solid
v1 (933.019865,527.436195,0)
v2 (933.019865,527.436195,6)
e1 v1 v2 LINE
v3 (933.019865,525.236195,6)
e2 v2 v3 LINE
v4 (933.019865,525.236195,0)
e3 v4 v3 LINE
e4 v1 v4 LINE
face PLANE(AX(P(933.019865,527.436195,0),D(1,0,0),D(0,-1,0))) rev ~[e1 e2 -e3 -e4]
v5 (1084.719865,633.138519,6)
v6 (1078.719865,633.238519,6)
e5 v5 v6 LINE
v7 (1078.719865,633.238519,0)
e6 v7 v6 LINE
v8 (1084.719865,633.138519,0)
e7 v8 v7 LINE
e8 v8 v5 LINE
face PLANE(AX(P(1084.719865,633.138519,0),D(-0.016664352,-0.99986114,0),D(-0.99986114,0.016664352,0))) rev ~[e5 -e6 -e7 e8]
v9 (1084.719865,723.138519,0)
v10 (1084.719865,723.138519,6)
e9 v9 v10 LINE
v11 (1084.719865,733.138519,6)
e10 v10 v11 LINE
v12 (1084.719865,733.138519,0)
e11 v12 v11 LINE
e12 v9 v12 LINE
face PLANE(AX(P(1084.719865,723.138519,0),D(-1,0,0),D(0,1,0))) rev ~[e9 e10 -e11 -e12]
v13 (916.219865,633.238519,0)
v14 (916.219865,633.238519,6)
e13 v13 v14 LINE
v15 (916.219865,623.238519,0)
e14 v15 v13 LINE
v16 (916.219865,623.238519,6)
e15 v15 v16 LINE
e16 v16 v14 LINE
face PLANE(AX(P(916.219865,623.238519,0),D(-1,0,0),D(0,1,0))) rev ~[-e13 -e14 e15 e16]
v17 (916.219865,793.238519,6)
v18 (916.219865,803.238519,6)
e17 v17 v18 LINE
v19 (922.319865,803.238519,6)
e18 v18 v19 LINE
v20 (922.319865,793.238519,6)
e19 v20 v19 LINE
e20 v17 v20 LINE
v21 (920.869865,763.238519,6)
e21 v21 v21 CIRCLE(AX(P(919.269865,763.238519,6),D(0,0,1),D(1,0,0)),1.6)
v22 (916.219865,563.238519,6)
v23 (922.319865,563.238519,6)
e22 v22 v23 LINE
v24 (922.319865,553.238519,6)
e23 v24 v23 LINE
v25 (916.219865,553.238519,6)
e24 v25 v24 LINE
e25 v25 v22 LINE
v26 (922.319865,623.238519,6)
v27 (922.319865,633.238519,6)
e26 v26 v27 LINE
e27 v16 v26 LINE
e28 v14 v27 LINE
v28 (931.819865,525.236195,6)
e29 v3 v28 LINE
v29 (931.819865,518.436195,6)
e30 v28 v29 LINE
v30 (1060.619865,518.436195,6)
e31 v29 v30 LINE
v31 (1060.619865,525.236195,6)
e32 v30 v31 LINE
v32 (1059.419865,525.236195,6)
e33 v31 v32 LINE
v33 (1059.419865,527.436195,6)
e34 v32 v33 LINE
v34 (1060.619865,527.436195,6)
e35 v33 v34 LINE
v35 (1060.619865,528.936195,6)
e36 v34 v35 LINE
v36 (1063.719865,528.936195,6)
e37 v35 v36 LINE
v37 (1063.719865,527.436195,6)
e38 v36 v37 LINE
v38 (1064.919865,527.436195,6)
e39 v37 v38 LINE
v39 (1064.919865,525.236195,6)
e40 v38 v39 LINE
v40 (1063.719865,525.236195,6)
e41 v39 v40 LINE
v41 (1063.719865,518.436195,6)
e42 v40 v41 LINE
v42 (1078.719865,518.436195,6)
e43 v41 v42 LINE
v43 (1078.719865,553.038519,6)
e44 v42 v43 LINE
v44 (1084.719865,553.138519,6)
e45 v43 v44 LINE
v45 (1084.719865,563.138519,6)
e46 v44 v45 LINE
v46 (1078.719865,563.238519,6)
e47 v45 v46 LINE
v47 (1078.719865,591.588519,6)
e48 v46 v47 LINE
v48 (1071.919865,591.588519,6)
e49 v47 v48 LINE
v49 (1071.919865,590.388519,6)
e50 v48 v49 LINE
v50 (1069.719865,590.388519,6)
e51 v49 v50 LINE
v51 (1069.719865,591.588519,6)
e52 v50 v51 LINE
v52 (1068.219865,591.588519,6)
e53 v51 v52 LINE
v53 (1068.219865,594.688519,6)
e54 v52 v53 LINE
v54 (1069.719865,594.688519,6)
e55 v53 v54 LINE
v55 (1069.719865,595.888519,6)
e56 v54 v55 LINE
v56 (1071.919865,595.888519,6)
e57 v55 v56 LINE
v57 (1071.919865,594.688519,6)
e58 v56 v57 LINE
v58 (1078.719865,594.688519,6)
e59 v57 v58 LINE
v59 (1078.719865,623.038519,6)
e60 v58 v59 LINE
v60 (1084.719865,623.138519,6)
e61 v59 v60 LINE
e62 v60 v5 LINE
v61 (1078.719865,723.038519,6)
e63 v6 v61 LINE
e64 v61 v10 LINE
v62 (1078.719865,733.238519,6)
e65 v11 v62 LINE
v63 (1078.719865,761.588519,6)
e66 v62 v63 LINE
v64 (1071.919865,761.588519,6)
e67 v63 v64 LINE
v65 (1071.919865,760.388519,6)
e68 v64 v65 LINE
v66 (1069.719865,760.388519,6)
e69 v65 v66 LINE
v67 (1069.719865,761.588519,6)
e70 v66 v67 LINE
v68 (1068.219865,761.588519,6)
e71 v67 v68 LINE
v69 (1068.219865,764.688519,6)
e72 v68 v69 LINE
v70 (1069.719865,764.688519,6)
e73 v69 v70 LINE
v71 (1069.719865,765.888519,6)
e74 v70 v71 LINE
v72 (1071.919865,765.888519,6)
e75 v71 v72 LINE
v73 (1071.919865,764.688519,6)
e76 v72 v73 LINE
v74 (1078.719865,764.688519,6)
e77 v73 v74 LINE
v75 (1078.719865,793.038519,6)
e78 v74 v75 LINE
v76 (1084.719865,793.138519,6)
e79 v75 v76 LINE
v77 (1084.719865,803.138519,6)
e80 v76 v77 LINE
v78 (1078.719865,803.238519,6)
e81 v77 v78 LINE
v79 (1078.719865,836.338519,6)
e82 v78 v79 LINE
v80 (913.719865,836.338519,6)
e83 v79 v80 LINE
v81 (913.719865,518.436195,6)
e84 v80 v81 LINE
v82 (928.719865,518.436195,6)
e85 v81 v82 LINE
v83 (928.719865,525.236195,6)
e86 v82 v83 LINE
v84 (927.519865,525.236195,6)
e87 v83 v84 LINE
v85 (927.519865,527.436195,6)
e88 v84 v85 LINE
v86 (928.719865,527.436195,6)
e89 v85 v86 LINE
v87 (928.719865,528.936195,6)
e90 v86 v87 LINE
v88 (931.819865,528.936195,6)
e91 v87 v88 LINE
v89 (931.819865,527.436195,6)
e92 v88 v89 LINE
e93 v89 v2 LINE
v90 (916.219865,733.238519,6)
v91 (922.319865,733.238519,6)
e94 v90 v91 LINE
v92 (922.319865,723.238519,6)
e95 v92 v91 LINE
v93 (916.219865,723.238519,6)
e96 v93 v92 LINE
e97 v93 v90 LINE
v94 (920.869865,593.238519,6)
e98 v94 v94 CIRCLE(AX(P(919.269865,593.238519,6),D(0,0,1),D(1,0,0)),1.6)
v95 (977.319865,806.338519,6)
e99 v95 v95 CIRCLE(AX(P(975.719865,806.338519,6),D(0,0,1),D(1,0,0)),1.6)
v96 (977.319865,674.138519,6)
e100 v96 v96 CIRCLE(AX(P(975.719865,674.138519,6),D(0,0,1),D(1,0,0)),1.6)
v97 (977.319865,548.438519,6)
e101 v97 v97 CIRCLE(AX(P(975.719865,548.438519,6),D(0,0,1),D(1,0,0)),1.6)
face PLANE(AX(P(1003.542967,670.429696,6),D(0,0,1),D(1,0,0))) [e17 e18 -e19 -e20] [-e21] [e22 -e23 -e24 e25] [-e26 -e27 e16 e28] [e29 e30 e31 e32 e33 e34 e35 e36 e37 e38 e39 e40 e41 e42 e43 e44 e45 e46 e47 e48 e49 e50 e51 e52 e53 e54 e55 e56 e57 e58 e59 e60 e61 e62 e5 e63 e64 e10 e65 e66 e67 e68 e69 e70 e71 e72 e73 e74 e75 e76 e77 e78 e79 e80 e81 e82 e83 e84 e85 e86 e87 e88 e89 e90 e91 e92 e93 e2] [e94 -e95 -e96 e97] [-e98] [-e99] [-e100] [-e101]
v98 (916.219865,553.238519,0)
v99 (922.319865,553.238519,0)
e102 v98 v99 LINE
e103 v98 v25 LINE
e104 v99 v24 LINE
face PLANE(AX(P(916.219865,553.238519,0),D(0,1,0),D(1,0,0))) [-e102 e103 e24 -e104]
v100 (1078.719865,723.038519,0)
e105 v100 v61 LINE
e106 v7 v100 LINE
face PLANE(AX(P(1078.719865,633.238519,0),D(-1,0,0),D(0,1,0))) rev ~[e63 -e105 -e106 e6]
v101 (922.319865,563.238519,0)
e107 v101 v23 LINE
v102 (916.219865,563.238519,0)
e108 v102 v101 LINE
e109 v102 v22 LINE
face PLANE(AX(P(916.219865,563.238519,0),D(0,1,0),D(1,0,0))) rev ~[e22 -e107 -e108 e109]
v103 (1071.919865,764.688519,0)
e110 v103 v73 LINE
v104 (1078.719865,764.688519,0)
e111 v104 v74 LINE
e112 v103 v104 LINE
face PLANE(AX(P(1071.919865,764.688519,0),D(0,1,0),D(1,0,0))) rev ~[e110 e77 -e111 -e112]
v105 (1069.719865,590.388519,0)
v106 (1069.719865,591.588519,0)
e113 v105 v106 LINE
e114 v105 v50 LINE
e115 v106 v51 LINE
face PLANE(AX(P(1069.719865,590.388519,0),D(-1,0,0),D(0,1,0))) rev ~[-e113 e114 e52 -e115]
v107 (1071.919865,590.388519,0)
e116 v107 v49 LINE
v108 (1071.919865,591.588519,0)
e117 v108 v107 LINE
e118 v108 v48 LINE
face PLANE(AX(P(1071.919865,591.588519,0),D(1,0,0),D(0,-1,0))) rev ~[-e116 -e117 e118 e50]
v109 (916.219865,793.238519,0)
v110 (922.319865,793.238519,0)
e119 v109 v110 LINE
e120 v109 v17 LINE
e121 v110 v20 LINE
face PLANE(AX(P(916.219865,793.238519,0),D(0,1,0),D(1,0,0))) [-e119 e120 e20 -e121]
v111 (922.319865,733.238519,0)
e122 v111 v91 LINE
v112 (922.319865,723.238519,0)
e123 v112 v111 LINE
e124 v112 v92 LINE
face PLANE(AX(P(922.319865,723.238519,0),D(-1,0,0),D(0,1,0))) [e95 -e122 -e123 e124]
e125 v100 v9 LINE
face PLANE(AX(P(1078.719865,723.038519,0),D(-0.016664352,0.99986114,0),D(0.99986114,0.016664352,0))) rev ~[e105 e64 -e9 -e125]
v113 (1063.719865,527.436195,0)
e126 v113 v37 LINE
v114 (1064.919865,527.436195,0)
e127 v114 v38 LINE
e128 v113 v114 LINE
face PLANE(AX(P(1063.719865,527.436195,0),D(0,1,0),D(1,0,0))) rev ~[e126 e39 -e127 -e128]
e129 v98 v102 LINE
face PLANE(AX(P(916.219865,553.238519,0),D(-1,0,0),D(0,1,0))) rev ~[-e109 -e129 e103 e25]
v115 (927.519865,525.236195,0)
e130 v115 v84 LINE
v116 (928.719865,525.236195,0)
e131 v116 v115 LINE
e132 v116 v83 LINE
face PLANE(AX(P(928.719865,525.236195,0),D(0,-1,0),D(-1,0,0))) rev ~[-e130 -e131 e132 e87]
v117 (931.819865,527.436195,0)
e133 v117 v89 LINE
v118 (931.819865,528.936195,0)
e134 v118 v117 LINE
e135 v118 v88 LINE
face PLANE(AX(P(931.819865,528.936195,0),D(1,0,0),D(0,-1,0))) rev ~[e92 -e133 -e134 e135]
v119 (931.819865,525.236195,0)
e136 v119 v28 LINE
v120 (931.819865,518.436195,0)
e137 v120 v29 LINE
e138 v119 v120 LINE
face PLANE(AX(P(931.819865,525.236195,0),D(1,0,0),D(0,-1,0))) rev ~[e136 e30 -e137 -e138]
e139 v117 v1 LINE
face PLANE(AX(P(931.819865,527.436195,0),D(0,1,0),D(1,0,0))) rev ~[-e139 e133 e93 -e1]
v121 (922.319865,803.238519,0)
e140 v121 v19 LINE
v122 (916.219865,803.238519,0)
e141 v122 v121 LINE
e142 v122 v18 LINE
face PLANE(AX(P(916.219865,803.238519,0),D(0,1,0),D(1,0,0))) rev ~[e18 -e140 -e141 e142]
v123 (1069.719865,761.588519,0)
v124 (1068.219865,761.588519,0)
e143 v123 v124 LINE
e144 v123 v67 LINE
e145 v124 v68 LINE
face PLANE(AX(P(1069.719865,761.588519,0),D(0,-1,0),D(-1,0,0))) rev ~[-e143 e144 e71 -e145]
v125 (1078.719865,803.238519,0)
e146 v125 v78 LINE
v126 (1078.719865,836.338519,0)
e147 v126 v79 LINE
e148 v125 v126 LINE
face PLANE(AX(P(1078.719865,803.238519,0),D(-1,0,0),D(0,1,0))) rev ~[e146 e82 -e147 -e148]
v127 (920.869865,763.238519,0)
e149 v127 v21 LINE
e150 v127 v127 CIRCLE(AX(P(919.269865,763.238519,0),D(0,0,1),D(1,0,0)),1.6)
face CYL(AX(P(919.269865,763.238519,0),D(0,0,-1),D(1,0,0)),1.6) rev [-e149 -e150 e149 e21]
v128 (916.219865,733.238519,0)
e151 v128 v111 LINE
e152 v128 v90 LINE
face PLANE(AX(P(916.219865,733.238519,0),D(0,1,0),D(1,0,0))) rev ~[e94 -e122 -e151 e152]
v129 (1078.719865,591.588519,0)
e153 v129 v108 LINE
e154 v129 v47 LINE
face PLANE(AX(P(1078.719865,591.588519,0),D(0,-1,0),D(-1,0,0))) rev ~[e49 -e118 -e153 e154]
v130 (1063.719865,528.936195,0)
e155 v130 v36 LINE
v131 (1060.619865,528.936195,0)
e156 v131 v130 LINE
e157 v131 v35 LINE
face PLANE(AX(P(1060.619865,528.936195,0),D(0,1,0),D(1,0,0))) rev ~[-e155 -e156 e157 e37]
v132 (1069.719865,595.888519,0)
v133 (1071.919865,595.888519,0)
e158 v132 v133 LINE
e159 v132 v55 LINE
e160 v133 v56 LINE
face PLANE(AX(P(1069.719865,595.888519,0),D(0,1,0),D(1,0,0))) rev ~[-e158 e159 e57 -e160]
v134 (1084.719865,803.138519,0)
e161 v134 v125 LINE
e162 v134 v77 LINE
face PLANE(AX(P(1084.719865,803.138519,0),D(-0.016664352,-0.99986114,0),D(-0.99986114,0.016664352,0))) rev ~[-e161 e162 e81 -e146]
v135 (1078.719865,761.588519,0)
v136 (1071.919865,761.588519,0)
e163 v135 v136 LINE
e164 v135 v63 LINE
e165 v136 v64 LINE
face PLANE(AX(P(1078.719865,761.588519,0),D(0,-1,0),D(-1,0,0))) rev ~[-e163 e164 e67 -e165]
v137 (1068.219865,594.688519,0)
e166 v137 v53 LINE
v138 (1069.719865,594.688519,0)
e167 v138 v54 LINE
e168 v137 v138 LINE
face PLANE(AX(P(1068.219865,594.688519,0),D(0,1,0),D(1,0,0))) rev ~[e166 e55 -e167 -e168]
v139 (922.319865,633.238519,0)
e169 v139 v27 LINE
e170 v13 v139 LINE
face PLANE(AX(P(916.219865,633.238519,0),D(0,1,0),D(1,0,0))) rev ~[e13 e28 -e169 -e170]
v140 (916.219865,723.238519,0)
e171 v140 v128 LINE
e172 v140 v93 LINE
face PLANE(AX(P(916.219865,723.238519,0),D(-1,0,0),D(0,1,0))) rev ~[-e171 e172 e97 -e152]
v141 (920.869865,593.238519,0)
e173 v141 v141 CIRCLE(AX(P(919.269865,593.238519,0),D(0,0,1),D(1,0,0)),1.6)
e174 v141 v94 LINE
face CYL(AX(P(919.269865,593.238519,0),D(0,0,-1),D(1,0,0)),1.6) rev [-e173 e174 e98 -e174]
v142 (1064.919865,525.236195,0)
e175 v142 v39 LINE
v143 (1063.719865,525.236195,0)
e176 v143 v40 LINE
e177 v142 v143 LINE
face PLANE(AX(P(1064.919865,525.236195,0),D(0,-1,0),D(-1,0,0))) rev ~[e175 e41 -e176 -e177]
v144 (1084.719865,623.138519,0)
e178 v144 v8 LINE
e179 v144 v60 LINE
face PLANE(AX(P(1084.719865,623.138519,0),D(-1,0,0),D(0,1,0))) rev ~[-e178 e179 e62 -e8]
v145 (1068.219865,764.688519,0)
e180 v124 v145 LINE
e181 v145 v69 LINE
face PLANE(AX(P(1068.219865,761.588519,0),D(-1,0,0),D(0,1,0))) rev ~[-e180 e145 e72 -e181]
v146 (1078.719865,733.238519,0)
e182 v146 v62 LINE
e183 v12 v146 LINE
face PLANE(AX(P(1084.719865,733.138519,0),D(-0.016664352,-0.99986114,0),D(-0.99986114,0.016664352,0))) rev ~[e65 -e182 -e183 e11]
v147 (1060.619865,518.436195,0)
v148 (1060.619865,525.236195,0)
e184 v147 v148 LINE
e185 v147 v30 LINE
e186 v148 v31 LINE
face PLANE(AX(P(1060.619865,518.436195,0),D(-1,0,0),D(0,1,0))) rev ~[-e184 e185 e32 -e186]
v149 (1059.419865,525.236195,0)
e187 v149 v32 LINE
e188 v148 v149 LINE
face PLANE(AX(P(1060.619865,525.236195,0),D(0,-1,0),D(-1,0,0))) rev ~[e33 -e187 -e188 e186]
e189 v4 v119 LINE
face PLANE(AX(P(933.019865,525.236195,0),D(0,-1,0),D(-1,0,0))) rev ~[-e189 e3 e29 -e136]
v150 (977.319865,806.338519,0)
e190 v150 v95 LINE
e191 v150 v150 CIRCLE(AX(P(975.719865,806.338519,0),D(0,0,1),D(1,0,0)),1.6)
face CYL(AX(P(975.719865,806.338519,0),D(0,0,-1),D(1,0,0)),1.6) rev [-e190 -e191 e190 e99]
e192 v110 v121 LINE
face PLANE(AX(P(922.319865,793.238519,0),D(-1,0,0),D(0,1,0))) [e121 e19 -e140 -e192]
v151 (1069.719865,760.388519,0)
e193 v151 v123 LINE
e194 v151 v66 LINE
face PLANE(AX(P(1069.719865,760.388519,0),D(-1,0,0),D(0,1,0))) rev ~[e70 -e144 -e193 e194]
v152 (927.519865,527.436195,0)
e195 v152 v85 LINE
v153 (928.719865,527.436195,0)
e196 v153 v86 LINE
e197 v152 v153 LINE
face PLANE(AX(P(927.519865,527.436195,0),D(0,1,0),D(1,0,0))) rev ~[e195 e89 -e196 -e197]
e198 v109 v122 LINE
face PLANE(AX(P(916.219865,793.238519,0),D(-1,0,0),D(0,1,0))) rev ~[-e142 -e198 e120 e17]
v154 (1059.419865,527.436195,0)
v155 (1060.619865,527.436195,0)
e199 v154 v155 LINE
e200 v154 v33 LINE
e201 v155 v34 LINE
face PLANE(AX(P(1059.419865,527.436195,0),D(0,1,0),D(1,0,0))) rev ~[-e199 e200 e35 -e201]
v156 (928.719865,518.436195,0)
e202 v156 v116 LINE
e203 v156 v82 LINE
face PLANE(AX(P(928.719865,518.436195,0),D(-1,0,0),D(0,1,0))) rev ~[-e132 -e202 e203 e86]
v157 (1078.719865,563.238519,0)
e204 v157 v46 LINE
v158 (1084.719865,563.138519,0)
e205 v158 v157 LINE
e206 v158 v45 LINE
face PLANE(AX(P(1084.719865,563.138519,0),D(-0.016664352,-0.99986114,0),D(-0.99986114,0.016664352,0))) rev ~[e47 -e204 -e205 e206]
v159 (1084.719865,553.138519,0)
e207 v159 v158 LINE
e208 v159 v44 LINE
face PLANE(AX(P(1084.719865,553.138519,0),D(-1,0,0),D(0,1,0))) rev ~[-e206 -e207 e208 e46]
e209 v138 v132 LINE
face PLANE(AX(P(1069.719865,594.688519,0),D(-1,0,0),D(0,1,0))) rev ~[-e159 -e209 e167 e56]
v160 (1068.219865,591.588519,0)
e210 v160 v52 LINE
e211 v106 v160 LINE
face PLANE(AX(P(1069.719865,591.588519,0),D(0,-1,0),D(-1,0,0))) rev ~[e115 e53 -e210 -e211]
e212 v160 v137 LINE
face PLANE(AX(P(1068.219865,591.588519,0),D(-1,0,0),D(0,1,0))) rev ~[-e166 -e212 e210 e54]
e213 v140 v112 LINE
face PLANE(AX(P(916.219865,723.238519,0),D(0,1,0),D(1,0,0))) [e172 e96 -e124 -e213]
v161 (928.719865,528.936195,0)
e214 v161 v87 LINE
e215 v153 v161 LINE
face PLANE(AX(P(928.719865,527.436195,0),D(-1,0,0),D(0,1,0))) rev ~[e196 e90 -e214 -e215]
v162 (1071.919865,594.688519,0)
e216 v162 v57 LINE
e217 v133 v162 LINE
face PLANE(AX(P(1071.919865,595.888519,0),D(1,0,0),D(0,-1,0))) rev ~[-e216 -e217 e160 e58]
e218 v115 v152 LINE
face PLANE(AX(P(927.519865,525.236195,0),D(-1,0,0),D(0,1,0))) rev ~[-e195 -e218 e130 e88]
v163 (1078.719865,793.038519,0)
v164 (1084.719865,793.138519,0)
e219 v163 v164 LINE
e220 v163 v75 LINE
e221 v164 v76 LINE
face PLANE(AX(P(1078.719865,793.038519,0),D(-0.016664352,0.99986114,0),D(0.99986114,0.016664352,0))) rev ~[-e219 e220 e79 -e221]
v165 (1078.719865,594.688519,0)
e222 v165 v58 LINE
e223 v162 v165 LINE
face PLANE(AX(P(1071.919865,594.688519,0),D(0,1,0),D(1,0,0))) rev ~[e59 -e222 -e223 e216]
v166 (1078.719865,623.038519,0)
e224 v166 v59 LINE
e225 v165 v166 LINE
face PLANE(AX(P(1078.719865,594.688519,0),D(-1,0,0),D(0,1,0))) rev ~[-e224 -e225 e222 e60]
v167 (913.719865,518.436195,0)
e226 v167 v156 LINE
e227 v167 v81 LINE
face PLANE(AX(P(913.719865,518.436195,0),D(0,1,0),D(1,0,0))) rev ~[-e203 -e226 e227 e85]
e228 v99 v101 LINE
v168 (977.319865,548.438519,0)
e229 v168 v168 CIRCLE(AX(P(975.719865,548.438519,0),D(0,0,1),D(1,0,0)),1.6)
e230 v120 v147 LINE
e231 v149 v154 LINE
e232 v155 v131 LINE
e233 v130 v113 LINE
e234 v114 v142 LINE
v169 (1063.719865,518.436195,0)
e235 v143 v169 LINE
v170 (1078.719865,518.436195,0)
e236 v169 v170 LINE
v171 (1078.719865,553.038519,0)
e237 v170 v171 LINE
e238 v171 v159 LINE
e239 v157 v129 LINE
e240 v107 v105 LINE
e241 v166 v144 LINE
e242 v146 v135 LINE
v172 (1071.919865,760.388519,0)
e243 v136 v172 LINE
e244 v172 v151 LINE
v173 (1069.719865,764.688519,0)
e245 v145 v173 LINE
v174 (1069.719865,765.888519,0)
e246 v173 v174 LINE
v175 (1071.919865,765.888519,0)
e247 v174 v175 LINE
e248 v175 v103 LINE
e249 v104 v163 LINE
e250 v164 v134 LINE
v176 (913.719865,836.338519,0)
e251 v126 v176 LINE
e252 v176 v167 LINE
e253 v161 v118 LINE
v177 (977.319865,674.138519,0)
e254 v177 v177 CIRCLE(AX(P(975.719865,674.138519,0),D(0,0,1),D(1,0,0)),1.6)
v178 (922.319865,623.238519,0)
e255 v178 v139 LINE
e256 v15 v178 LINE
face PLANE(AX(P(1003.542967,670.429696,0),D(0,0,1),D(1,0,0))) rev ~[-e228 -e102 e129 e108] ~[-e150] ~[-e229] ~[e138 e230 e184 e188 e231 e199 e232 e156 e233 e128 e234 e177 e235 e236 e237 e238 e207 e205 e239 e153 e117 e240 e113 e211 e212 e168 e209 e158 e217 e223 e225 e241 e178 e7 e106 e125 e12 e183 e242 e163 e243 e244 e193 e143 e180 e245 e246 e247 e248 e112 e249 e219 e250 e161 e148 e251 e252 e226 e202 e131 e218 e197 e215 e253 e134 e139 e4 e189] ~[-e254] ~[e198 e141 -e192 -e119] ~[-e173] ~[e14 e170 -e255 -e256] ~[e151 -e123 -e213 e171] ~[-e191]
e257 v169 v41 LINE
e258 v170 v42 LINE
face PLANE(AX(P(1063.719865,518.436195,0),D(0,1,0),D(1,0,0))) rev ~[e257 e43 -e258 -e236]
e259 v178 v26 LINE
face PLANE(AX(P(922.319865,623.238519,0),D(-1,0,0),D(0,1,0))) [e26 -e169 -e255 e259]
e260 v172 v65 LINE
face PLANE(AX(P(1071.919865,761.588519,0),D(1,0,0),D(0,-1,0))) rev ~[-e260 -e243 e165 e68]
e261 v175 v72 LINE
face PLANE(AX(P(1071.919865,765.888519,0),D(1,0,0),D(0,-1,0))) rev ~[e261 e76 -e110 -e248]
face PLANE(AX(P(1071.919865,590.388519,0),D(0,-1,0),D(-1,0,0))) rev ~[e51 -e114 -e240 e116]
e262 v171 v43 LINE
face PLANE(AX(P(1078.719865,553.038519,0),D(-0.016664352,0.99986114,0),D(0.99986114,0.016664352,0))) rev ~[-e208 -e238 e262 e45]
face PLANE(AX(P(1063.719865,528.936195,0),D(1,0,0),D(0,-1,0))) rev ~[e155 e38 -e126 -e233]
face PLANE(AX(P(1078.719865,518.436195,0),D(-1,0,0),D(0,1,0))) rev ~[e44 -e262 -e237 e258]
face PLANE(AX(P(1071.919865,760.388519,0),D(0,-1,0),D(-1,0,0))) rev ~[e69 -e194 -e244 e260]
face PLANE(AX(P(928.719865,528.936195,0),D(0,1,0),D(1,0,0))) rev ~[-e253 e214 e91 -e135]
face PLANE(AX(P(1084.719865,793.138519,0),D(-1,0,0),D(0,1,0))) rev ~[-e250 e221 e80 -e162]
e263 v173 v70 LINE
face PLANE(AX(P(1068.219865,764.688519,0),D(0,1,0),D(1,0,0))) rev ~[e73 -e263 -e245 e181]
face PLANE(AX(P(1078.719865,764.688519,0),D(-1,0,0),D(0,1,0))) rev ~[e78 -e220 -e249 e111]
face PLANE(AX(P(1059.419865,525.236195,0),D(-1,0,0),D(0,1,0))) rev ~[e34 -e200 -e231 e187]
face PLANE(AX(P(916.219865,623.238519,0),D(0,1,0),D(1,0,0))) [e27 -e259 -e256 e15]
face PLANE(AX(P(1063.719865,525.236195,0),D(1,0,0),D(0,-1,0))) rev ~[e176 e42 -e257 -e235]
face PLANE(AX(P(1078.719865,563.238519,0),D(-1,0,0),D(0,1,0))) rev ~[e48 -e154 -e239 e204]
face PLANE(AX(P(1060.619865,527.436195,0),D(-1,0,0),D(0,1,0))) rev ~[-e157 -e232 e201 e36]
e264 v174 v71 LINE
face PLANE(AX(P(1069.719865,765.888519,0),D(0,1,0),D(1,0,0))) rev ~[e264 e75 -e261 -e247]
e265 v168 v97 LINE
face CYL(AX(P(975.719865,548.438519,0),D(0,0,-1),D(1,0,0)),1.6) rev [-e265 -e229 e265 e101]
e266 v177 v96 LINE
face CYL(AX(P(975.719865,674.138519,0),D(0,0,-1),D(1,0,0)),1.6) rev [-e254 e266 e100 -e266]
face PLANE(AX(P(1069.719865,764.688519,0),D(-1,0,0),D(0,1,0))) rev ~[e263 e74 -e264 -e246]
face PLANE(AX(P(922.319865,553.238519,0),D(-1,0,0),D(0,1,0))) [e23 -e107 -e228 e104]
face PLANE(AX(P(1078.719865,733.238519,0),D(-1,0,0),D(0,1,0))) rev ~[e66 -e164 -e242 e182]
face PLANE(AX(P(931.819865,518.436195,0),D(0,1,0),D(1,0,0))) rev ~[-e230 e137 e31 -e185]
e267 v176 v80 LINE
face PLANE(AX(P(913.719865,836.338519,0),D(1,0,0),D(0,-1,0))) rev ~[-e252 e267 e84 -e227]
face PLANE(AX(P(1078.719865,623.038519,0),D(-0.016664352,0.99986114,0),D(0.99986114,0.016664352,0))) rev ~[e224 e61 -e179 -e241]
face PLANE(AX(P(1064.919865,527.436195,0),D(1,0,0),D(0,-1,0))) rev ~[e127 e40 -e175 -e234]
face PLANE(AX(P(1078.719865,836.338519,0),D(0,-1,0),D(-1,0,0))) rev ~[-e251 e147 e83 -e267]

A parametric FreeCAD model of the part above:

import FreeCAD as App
import Part
import Sketcher
from FreeCAD import Vector
Q = App.Units.Quantity

doc = App.newDocument("Part")
body = doc.addObject("PartDesign::Body", "Body")

sketch1 = body.newObject("Sketcher::SketchObject", "Sketch")
sketch1.AttachmentSupport = (doc.getObject("XY_Plane"), [""])
sketch1.MapMode = "FlatFace"
sketch1.addGeometry(Part.LineSegment(Vector(1078.7, 623, 0), Vector(1084.7, 623.1, 0)), False)
sketch1.addGeometry(Part.LineSegment(Vector(1084.7, 623.1, 0), Vector(1084.7, 633.1, 0)), False)
sketch1.addGeometry(Part.LineSegment(Vector(1084.7, 633.1, 0), Vector(1078.7, 633.2, 0)), False)
sketch1.addGeometry(Part.LineSegment(Vector(1078.7, 633.2, 0), Vector(1078.7, 723, 0)), False)
sketch1.addGeometry(Part.LineSegment(Vector(1078.7, 723, 0), Vector(1084.7, 723.1, 0)), False)
sketch1.addGeometry(Part.LineSegment(Vector(1084.7, 723.1, 0), Vector(1084.7, 733.1, 0)), False)
sketch1.addGeometry(Part.LineSegment(Vector(1084.7, 733.1, 0), Vector(1078.7, 733.2, 0)), False)
sketch1.addGeometry(Part.LineSegment(Vector(1078.7, 733.2, 0), Vector(1078.7, 761.6, 0)), False)
sketch1.addGeometry(Part.LineSegment(Vector(1078.7, 761.6, 0), Vector(1071.9, 761.6, 0)), False)
sketch1.addGeometry(Part.LineSegment(Vector(1071.9, 761.6, 0), Vector(1071.9, 760.4, 0)), False)
sketch1.addGeometry(Part.LineSegment(Vector(1071.9, 760.4, 0), Vector(1069.7, 760.4, 0)), False)
sketch1.addGeometry(Part.LineSegment(Vector(1069.7, 760.4, 0), Vector(1069.7, 761.6, 0)), False)
sketch1.addGeometry(Part.LineSegment(Vector(1069.7, 761.6, 0), Vector(1068.2, 761.6, 0)), False)
sketch1.addGeometry(Part.LineSegment(Vector(1068.2, 761.6, 0), Vector(1068.2, 764.7, 0)), False)
sketch1.addGeometry(Part.LineSegment(Vector(1068.2, 764.7, 0), Vector(1069.7, 764.7, 0)), False)
sketch1.addGeometry(Part.LineSegment(Vector(1069.7, 764.7, 0), Vector(1069.7, 765.9, 0)), False)
sketch1.addGeometry(Part.LineSegment(Vector(1069.7, 765.9, 0), Vector(1071.9, 765.9, 0)), False)
sketch1.addGeometry(Part.LineSegment(Vector(1071.9, 765.9, 0), Vector(1071.9, 764.7, 0)), False)
sketch1.addGeometry(Part.LineSegment(Vector(1071.9, 764.7, 0), Vector(1078.7, 764.7, 0)), False)
sketch1.addGeometry(Part.LineSegment(Vector(1078.7, 764.7, 0), Vector(1078.7, 793, 0)), False)
sketch1.addGeometry(Part.LineSegment(Vector(1078.7, 793, 0), Vector(1084.7, 793.1, 0)), False)
sketch1.addGeometry(Part.LineSegment(Vector(1084.7, 793.1, 0), Vector(1084.7, 803.1, 0)), False)
sketch1.addGeometry(Part.LineSegment(Vector(1084.7, 803.1, 0), Vector(1078.7, 803.2, 0)), False)
sketch1.addGeometry(Part.LineSegment(Vector(1078.7, 803.2, 0), Vector(1078.7, 836.3, 0)), False)
sketch1.addGeometry(Part.LineSegment(Vector(1078.7, 836.3, 0), Vector(913.7, 836.3, 0)), False)
sketch1.addGeometry(Part.LineSegment(Vector(913.7, 836.3, 0), Vector(913.7, 518.4, 0)), False)
sketch1.addGeometry(Part.LineSegment(Vector(913.7, 518.4, 0), Vector(928.7, 518.4, 0)), False)
sketch1.addGeometry(Part.LineSegment(Vector(928.7, 518.4, 0), Vector(928.7, 525.2, 0)), False)
sketch1.addGeometry(Part.LineSegment(Vector(928.7, 525.2, 0), Vector(927.5, 525.2, 0)), False)
sketch1.addGeometry(Part.LineSegment(Vector(927.5, 525.2, 0), Vector(927.5, 527.4, 0)), False)
sketch1.addGeometry(Part.LineSegment(Vector(927.5, 527.4, 0), Vector(928.7, 527.4, 0)), False)
sketch1.addGeometry(Part.LineSegment(Vector(928.7, 527.4, 0), Vector(928.7, 528.9, 0)), False)
sketch1.addGeometry(Part.LineSegment(Vector(928.7, 528.9, 0), Vector(931.8, 528.9, 0)), False)
sketch1.addGeometry(Part.LineSegment(Vector(931.8, 528.9, 0), Vector(931.8, 527.4, 0)), False)
sketch1.addGeometry(Part.LineSegment(Vector(931.8, 527.4, 0), Vector(933, 527.4, 0)), False)
sketch1.addGeometry(Part.LineSegment(Vector(933, 527.4, 0), Vector(933, 525.2, 0)), False)
sketch1.addGeometry(Part.LineSegment(Vector(933, 525.2, 0), Vector(931.8, 525.2, 0)), False)
sketch1.addGeometry(Part.LineSegment(Vector(931.8, 525.2, 0), Vector(931.8, 518.4, 0)), False)
sketch1.addGeometry(Part.LineSegment(Vector(931.8, 518.4, 0), Vector(1060.6, 518.4, 0)), False)
sketch1.addGeometry(Part.LineSegment(Vector(1060.6, 518.4, 0), Vector(1060.6, 525.2, 0)), False)
sketch1.addGeometry(Part.LineSegment(Vector(1060.6, 525.2, 0), Vector(1059.4, 525.2, 0)), False)
sketch1.addGeometry(Part.LineSegment(Vector(1059.4, 525.2, 0), Vector(1059.4, 527.4, 0)), False)
sketch1.addGeometry(Part.LineSegment(Vector(1059.4, 527.4, 0), Vector(1060.6, 527.4, 0)), False)
sketch1.addGeometry(Part.LineSegment(Vector(1060.6, 527.4, 0), Vector(1060.6, 528.9, 0)), False)
sketch1.addGeometry(Part.LineSegment(Vector(1060.6, 528.9, 0), Vector(1063.7, 528.9, 0)), False)
sketch1.addGeometry(Part.LineSegment(Vector(1063.7, 528.9, 0), Vector(1063.7, 527.4, 0)), False)
sketch1.addGeometry(Part.LineSegment(Vector(1063.7, 527.4, 0), Vector(1064.9, 527.4, 0)), False)
sketch1.addGeometry(Part.LineSegment(Vector(1064.9, 527.4, 0), Vector(1064.9, 525.2, 0)), False)
sketch1.addGeometry(Part.LineSegment(Vector(1064.9, 525.2, 0), Vector(1063.7, 525.2, 0)), False)
sketch1.addGeometry(Part.LineSegment(Vector(1063.7, 525.2, 0), Vector(1063.7, 518.4, 0)), False)
sketch1.addGeometry(Part.LineSegment(Vector(1063.7, 518.4, 0), Vector(1078.7, 518.4, 0)), False)
sketch1.addGeometry(Part.LineSegment(Vector(1078.7, 518.4, 0), Vector(1078.7, 553, 0)), False)
sketch1.addGeometry(Part.LineSegment(Vector(1078.7, 553, 0), Vector(1084.7, 553.1, 0)), False)
sketch1.addGeometry(Part.LineSegment(Vector(1084.7, 553.1, 0), Vector(1084.7, 563.1, 0)), False)
sketch1.addGeometry(Part.LineSegment(Vector(1084.7, 563.1, 0), Vector(1078.7, 563.2, 0)), False)
sketch1.addGeometry(Part.LineSegment(Vector(1078.7, 563.2, 0), Vector(1078.7, 591.6, 0)), False)
sketch1.addGeometry(Part.LineSegment(Vector(1078.7, 591.6, 0), Vector(1071.9, 591.6, 0)), False)
sketch1.addGeometry(Part.LineSegment(Vector(1071.9, 591.6, 0), Vector(1071.9, 590.4, 0)), False)
sketch1.addGeometry(Part.LineSegment(Vector(1071.9, 590.4, 0), Vector(1069.7, 590.4, 0)), False)
sketch1.addGeometry(Part.LineSegment(Vector(1069.7, 590.4, 0), Vector(1069.7, 591.6, 0)), False)
sketch1.addGeometry(Part.LineSegment(Vector(1069.7, 591.6, 0), Vector(1068.2, 591.6, 0)), False)
sketch1.addGeometry(Part.LineSegment(Vector(1068.2, 591.6, 0), Vector(1068.2, 594.7, 0)), False)
sketch1.addGeometry(Part.LineSegment(Vector(1068.2, 594.7, 0), Vector(1069.7, 594.7, 0)), False)
sketch1.addGeometry(Part.LineSegment(Vector(1069.7, 594.7, 0), Vector(1069.7, 595.9, 0)), False)
sketch1.addGeometry(Part.LineSegment(Vector(1069.7, 595.9, 0), Vector(1071.9, 595.9, 0)), False)
sketch1.addGeometry(Part.LineSegment(Vector(1071.9, 595.9, 0), Vector(1071.9, 594.7, 0)), False)
sketch1.addGeometry(Part.LineSegment(Vector(1071.9, 594.7, 0), Vector(1078.7, 594.7, 0)), False)
sketch1.addGeometry(Part.LineSegment(Vector(1078.7, 594.7, 0), Vector(1078.7, 623, 0)), False)
sketch1.addGeometry(Part.LineSegment(Vector(922.3, 553.2, 0), Vector(916.2, 553.2, 0)), False)
sketch1.addGeometry(Part.LineSegment(Vector(916.2, 553.2, 0), Vector(916.2, 563.2, 0)), False)
sketch1.addGeometry(Part.LineSegment(Vector(916.2, 563.2, 0), Vector(922.3, 563.2, 0)), False)
sketch1.addGeometry(Part.LineSegment(Vector(922.3, 563.2, 0), Vector(922.3, 553.2, 0)), False)
sketch1.addGeometry(Part.Circle(Vector(919.3, 593.2, 0), Vector(0, 0, 1), 1.6), False)
sketch1.addGeometry(Part.LineSegment(Vector(922.3, 623.2, 0), Vector(916.2, 623.2, 0)), False)
sketch1.addGeometry(Part.LineSegment(Vector(916.2, 623.2, 0), Vector(916.2, 633.2, 0)), False)
sketch1.addGeometry(Part.LineSegment(Vector(916.2, 633.2, 0), Vector(922.3, 633.2, 0)), False)
sketch1.addGeometry(Part.LineSegment(Vector(922.3, 633.2, 0), Vector(922.3, 623.2, 0)), False)
sketch1.addGeometry(Part.Circle(Vector(975.7, 548.4, 0), Vector(0, 0, 1), 1.6), False)
sketch1.addGeometry(Part.Circle(Vector(975.7, 674.1, 0), Vector(0, 0, 1), 1.6), False)
sketch1.addGeometry(Part.LineSegment(Vector(922.3, 723.2, 0), Vector(916.2, 723.2, 0)), False)
sketch1.addGeometry(Part.LineSegment(Vector(916.2, 723.2, 0), Vector(916.2, 733.2, 0)), False)
sketch1.addGeometry(Part.LineSegment(Vector(916.2, 733.2, 0), Vector(922.3, 733.2, 0)), False)
sketch1.addGeometry(Part.LineSegment(Vector(922.3, 733.2, 0), Vector(922.3, 723.2, 0)), False)
sketch1.addGeometry(Part.Circle(Vector(919.3, 763.2, 0), Vector(0, 0, 1), 1.6), False)
sketch1.addGeometry(Part.LineSegment(Vector(922.3, 793.2, 0), Vector(916.2, 793.2, 0)), False)
sketch1.addGeometry(Part.LineSegment(Vector(916.2, 793.2, 0), Vector(916.2, 803.2, 0)), False)
sketch1.addGeometry(Part.LineSegment(Vector(916.2, 803.2, 0), Vector(922.3, 803.2, 0)), False)
sketch1.addGeometry(Part.LineSegment(Vector(922.3, 803.2, 0), Vector(922.3, 793.2, 0)), False)
sketch1.addGeometry(Part.Circle(Vector(975.7, 806.3, 0), Vector(0, 0, 1), 1.6), False)
sketch1.addConstraint(Sketcher.Constraint("Coincident", 0, 2, 1, 1))
sketch1.addConstraint(Sketcher.Constraint("Coincident", 1, 2, 2, 1))
sketch1.addConstraint(Sketcher.Constraint("Coincident", 2, 2, 3, 1))
sketch1.addConstraint(Sketcher.Constraint("Coincident", 3, 2, 4, 1))
sketch1.addConstraint(Sketcher.Constraint("Coincident", 4, 2, 5, 1))
sketch1.addConstraint(Sketcher.Constraint("Coincident", 5, 2, 6, 1))
sketch1.addConstraint(Sketcher.Constraint("Coincident", 6, 2, 7, 1))
sketch1.addConstraint(Sketcher.Constraint("Coincident", 7, 2, 8, 1))
sketch1.addConstraint(Sketcher.Constraint("Coincident", 8, 2, 9, 1))
sketch1.addConstraint(Sketcher.Constraint("Coincident", 9, 2, 10, 1))
sketch1.addConstraint(Sketcher.Constraint("Coincident", 10, 2, 11, 1))
sketch1.addConstraint(Sketcher.Constraint("Coincident", 11, 2, 12, 1))
sketch1.addConstraint(Sketcher.Constraint("Coincident", 12, 2, 13, 1))
sketch1.addConstraint(Sketcher.Constraint("Coincident", 13, 2, 14, 1))
sketch1.addConstraint(Sketcher.Constraint("Coincident", 14, 2, 15, 1))
sketch1.addConstraint(Sketcher.Constraint("Coincident", 15, 2, 16, 1))
sketch1.addConstraint(Sketcher.Constraint("Coincident", 16, 2, 17, 1))
sketch1.addConstraint(Sketcher.Constraint("Coincident", 17, 2, 18, 1))
sketch1.addConstraint(Sketcher.Constraint("Coincident", 18, 2, 19, 1))
sketch1.addConstraint(Sketcher.Constraint("Coincident", 19, 2, 20, 1))
sketch1.addConstraint(Sketcher.Constraint("Coincident", 20, 2, 21, 1))
sketch1.addConstraint(Sketcher.Constraint("Coincident", 21, 2, 22, 1))
sketch1.addConstraint(Sketcher.Constraint("Coincident", 22, 2, 23, 1))
sketch1.addConstraint(Sketcher.Constraint("Coincident", 23, 2, 24, 1))
sketch1.addConstraint(Sketcher.Constraint("Coincident", 24, 2, 25, 1))
sketch1.addConstraint(Sketcher.Constraint("Coincident", 25, 2, 26, 1))
sketch1.addConstraint(Sketcher.Constraint("Coincident", 26, 2, 27, 1))
sketch1.addConstraint(Sketcher.Constraint("Coincident", 27, 2, 28, 1))
sketch1.addConstraint(Sketcher.Constraint("Coincident", 28, 2, 29, 1))
sketch1.addConstraint(Sketcher.Constraint("Coincident", 29, 2, 30, 1))
sketch1.addConstraint(Sketcher.Constraint("Coincident", 30, 2, 31, 1))
sketch1.addConstraint(Sketcher.Constraint("Coincident", 31, 2, 32, 1))
sketch1.addConstraint(Sketcher.Constraint("Coincident", 32, 2, 33, 1))
sketch1.addConstraint(Sketcher.Constraint("Coincident", 33, 2, 34, 1))
sketch1.addConstraint(Sketcher.Constraint("Coincident", 34, 2, 35, 1))
sketch1.addConstraint(Sketcher.Constraint("Coincident", 35, 2, 36, 1))
sketch1.addConstraint(Sketcher.Constraint("Coincident", 36, 2, 37, 1))
sketch1.addConstraint(Sketcher.Constraint("Coincident", 37, 2, 38, 1))
sketch1.addConstraint(Sketcher.Constraint("Coincident", 38, 2, 39, 1))
sketch1.addConstraint(Sketcher.Constraint("Coincident", 39, 2, 40, 1))
sketch1.addConstraint(Sketcher.Constraint("Coincident", 40, 2, 41, 1))
sketch1.addConstraint(Sketcher.Constraint("Coincident", 41, 2, 42, 1))
sketch1.addConstraint(Sketcher.Constraint("Coincident", 42, 2, 43, 1))
sketch1.addConstraint(Sketcher.Constraint("Coincident", 43, 2, 44, 1))
sketch1.addConstraint(Sketcher.Constraint("Coincident", 44, 2, 45, 1))
sketch1.addConstraint(Sketcher.Constraint("Coincident", 45, 2, 46, 1))
sketch1.addConstraint(Sketcher.Constraint("Coincident", 46, 2, 47, 1))
sketch1.addConstraint(Sketcher.Constraint("Coincident", 47, 2, 48, 1))
sketch1.addConstraint(Sketcher.Constraint("Coincident", 48, 2, 49, 1))
sketch1.addConstraint(Sketcher.Constraint("Coincident", 49, 2, 50, 1))
sketch1.addConstraint(Sketcher.Constraint("Coincident", 50, 2, 51, 1))
sketch1.addConstraint(Sketcher.Constraint("Coincident", 51, 2, 52, 1))
sketch1.addConstraint(Sketcher.Constraint("Coincident", 52, 2, 53, 1))
sketch1.addConstraint(Sketcher.Constraint("Coincident", 53, 2, 54, 1))
sketch1.addConstraint(Sketcher.Constraint("Coincident", 54, 2, 55, 1))
sketch1.addConstraint(Sketcher.Constraint("Coincident", 55, 2, 56, 1))
sketch1.addConstraint(Sketcher.Constraint("Coincident", 56, 2, 57, 1))
sketch1.addConstraint(Sketcher.Constraint("Coincident", 57, 2, 58, 1))
sketch1.addConstraint(Sketcher.Constraint("Coincident", 58, 2, 59, 1))
sketch1.addConstraint(Sketcher.Constraint("Coincident", 59, 2, 60, 1))
sketch1.addConstraint(Sketcher.Constraint("Coincident", 60, 2, 61, 1))
sketch1.addConstraint(Sketcher.Constraint("Coincident", 61, 2, 62, 1))
sketch1.addConstraint(Sketcher.Constraint("Coincident", 62, 2, 63, 1))
sketch1.addConstraint(Sketcher.Constraint("Coincident", 63, 2, 64, 1))
sketch1.addConstraint(Sketcher.Constraint("Coincident", 64, 2, 65, 1))
sketch1.addConstraint(Sketcher.Constraint("Coincident", 65, 2, 66, 1))
sketch1.addConstraint(Sketcher.Constraint("Coincident", 66, 2, 67, 1))
sketch1.addConstraint(Sketcher.Constraint("Coincident", 67, 2, 0, 1))
sketch1.addConstraint(Sketcher.Constraint("Coincident", 68, 2, 69, 1))
sketch1.addConstraint(Sketcher.Constraint("Coincident", 69, 2, 70, 1))
sketch1.addConstraint(Sketcher.Constraint("Coincident", 70, 2, 71, 1))
sketch1.addConstraint(Sketcher.Constraint("Coincident", 71, 2, 68, 1))
sketch1.addConstraint(Sketcher.Constraint("Coincident", 73, 2, 74, 1))
sketch1.addConstraint(Sketcher.Constraint("Coincident", 74, 2, 75, 1))
sketch1.addConstraint(Sketcher.Constraint("Coincident", 75, 2, 76, 1))
sketch1.addConstraint(Sketcher.Constraint("Coincident", 76, 2, 73, 1))
sketch1.addConstraint(Sketcher.Constraint("Coincident", 79, 2, 80, 1))
sketch1.addConstraint(Sketcher.Constraint("Coincident", 80, 2, 81, 1))
sketch1.addConstraint(Sketcher.Constraint("Coincident", 81, 2, 82, 1))
sketch1.addConstraint(Sketcher.Constraint("Coincident", 82, 2, 79, 1))
sketch1.addConstraint(Sketcher.Constraint("Coincident", 84, 2, 85, 1))
sketch1.addConstraint(Sketcher.Constraint("Coincident", 85, 2, 86, 1))
sketch1.addConstraint(Sketcher.Constraint("Coincident", 86, 2, 87, 1))
sketch1.addConstraint(Sketcher.Constraint("Coincident", 87, 2, 84, 1))
sketch1.addConstraint(Sketcher.Constraint("Vertical", 1))
sketch1.addConstraint(Sketcher.Constraint("Vertical", 3))
sketch1.addConstraint(Sketcher.Constraint("Vertical", 5))
sketch1.addConstraint(Sketcher.Constraint("Vertical", 7))
sketch1.addConstraint(Sketcher.Constraint("Horizontal", 8))
sketch1.addConstraint(Sketcher.Constraint("Vertical", 9))
sketch1.addConstraint(Sketcher.Constraint("Horizontal", 10))
sketch1.addConstraint(Sketcher.Constraint("Vertical", 11))
sketch1.addConstraint(Sketcher.Constraint("Horizontal", 12))
sketch1.addConstraint(Sketcher.Constraint("Vertical", 13))
sketch1.addConstraint(Sketcher.Constraint("Horizontal", 14))
sketch1.addConstraint(Sketcher.Constraint("Vertical", 15))
sketch1.addConstraint(Sketcher.Constraint("Horizontal", 16))
sketch1.addConstraint(Sketcher.Constraint("Vertical", 17))
sketch1.addConstraint(Sketcher.Constraint("Horizontal", 18))
sketch1.addConstraint(Sketcher.Constraint("Vertical", 19))
sketch1.addConstraint(Sketcher.Constraint("Vertical", 21))
sketch1.addConstraint(Sketcher.Constraint("Vertical", 23))
sketch1.addConstraint(Sketcher.Constraint("Horizontal", 24))
sketch1.addConstraint(Sketcher.Constraint("Vertical", 25))
sketch1.addConstraint(Sketcher.Constraint("Horizontal", 26))
sketch1.addConstraint(Sketcher.Constraint("Vertical", 27))
sketch1.addConstraint(Sketcher.Constraint("Horizontal", 28))
sketch1.addConstraint(Sketcher.Constraint("Vertical", 29))
sketch1.addConstraint(Sketcher.Constraint("Horizontal", 30))
sketch1.addConstraint(Sketcher.Constraint("Vertical", 31))
sketch1.addConstraint(Sketcher.Constraint("Horizontal", 32))
sketch1.addConstraint(Sketcher.Constraint("Vertical", 33))
sketch1.addConstraint(Sketcher.Constraint("Horizontal", 34))
sketch1.addConstraint(Sketcher.Constraint("Vertical", 35))
sketch1.addConstraint(Sketcher.Constraint("Horizontal", 36))
sketch1.addConstraint(Sketcher.Constraint("Vertical", 37))
sketch1.addConstraint(Sketcher.Constraint("Horizontal", 38))
sketch1.addConstraint(Sketcher.Constraint("Vertical", 39))
sketch1.addConstraint(Sketcher.Constraint("Horizontal", 40))
sketch1.addConstraint(Sketcher.Constraint("Vertical", 41))
sketch1.addConstraint(Sketcher.Constraint("Horizontal", 42))
sketch1.addConstraint(Sketcher.Constraint("Vertical", 43))
sketch1.addConstraint(Sketcher.Constraint("Horizontal", 44))
sketch1.addConstraint(Sketcher.Constraint("Vertical", 45))
sketch1.addConstraint(Sketcher.Constraint("Horizontal", 46))
sketch1.addConstraint(Sketcher.Constraint("Vertical", 47))
sketch1.addConstraint(Sketcher.Constraint("Horizontal", 48))
sketch1.addConstraint(Sketcher.Constraint("Vertical", 49))
sketch1.addConstraint(Sketcher.Constraint("Horizontal", 50))
sketch1.addConstraint(Sketcher.Constraint("Vertical", 51))
sketch1.addConstraint(Sketcher.Constraint("Vertical", 53))
sketch1.addConstraint(Sketcher.Constraint("Vertical", 55))
sketch1.addConstraint(Sketcher.Constraint("Horizontal", 56))
sketch1.addConstraint(Sketcher.Constraint("Vertical", 57))
sketch1.addConstraint(Sketcher.Constraint("Horizontal", 58))
sketch1.addConstraint(Sketcher.Constraint("Vertical", 59))
sketch1.addConstraint(Sketcher.Constraint("Horizontal", 60))
sketch1.addConstraint(Sketcher.Constraint("Vertical", 61))
sketch1.addConstraint(Sketcher.Constraint("Horizontal", 62))
sketch1.addConstraint(Sketcher.Constraint("Vertical", 63))
sketch1.addConstraint(Sketcher.Constraint("Horizontal", 64))
sketch1.addConstraint(Sketcher.Constraint("Vertical", 65))
sketch1.addConstraint(Sketcher.Constraint("Horizontal", 66))
sketch1.addConstraint(Sketcher.Constraint("Vertical", 67))
sketch1.addConstraint(Sketcher.Constraint("Horizontal", 68))
sketch1.addConstraint(Sketcher.Constraint("Vertical", 69))
sketch1.addConstraint(Sketcher.Constraint("Horizontal", 70))
sketch1.addConstraint(Sketcher.Constraint("Vertical", 71))
sketch1.addConstraint(Sketcher.Constraint("Horizontal", 73))
sketch1.addConstraint(Sketcher.Constraint("Vertical", 74))
sketch1.addConstraint(Sketcher.Constraint("Horizontal", 75))
sketch1.addConstraint(Sketcher.Constraint("Vertical", 76))
sketch1.addConstraint(Sketcher.Constraint("Horizontal", 79))
sketch1.addConstraint(Sketcher.Constraint("Vertical", 80))
sketch1.addConstraint(Sketcher.Constraint("Horizontal", 81))
sketch1.addConstraint(Sketcher.Constraint("Vertical", 82))
sketch1.addConstraint(Sketcher.Constraint("Horizontal", 84))
sketch1.addConstraint(Sketcher.Constraint("Vertical", 85))
sketch1.addConstraint(Sketcher.Constraint("Horizontal", 86))
sketch1.addConstraint(Sketcher.Constraint("Vertical", 87))
sketch1.addConstraint(Sketcher.Constraint("Equal", 72, 77))
sketch1.addConstraint(Sketcher.Constraint("Equal", 77, 78))
sketch1.addConstraint(Sketcher.Constraint("Equal", 78, 83))
sketch1.addConstraint(Sketcher.Constraint("Equal", 83, 88))
sketch1.addConstraint(Sketcher.Constraint("Parallel", 0, 4))
sketch1.addConstraint(Sketcher.Constraint("Parallel", 2, 6))
sketch1.addConstraint(Sketcher.Constraint("Parallel", 4, 20))
sketch1.addConstraint(Sketcher.Constraint("Parallel", 6, 22))
sketch1.addConstraint(Sketcher.Constraint("Parallel", 20, 52))
sketch1.addConstraint(Sketcher.Constraint("Parallel", 22, 54))
sketch1.addConstraint(Sketcher.Constraint("Horizontal", 8, 2, 11, 2))
sketch1.addConstraint(Sketcher.Constraint("Horizontal", 14, 2, 17, 2))
sketch1.addConstraint(Sketcher.Constraint("Horizontal", 30, 2, 33, 2))
sketch1.addConstraint(Sketcher.Constraint("Horizontal", 28, 2, 35, 2))
sketch1.addConstraint(Sketcher.Constraint("Horizontal", 26, 2, 37, 2))
sketch1.addConstraint(Sketcher.Constraint("Horizontal", 36, 2, 39, 2))
sketch1.addConstraint(Sketcher.Constraint("Horizontal", 34, 2, 41, 2))
sketch1.addConstraint(Sketcher.Constraint("Horizontal", 32, 2, 43, 2))
sketch1.addConstraint(Sketcher.Constraint("Horizontal", 42, 2, 45, 2))
sketch1.addConstraint(Sketcher.Constraint("Horizontal", 40, 2, 47, 2))
sketch1.addConstraint(Sketcher.Constraint("Horizontal", 38, 2, 49, 2))
sketch1.addConstraint(Sketcher.Constraint("Horizontal", 56, 2, 59, 2))
sketch1.addConstraint(Sketcher.Constraint("Horizontal", 62, 2, 65, 2))
sketch1.addConstraint(Sketcher.Constraint("Horizontal", 54, 2, 69, 2))
sketch1.addConstraint(Sketcher.Constraint("Horizontal", 2, 2, 74, 2))
sketch1.addConstraint(Sketcher.Constraint("Horizontal", 6, 2, 80, 2))
sketch1.addConstraint(Sketcher.Constraint("Horizontal", 22, 2, 85, 2))
sketch1.addConstraint(Sketcher.Constraint("Vertical", 77, 3, 78, 3))
sketch1.addConstraint(Sketcher.Constraint("Vertical", 72, 3, 83, 3))
sketch1.addConstraint(Sketcher.Constraint("Vertical", 78, 3, 88, 3))
sketch1.addConstraint(Sketcher.Constraint("Vertical", 1, 2, 4, 2))
sketch1.addConstraint(Sketcher.Constraint("Vertical", 3, 2, 6, 2))
sketch1.addConstraint(Sketcher.Constraint("Vertical", 11, 2, 14, 2))
sketch1.addConstraint(Sketcher.Constraint("Vertical", 9, 2, 16, 2))
sketch1.addConstraint(Sketcher.Constraint("Vertical", 7, 2, 18, 2))
sketch1.addConstraint(Sketcher.Constraint("Vertical", 5, 2, 20, 2))
sketch1.addConstraint(Sketcher.Constraint("Vertical", 19, 2, 22, 2))
sketch1.addConstraint(Sketcher.Constraint("Vertical", 27, 2, 30, 2))
sketch1.addConstraint(Sketcher.Constraint("Vertical", 33, 2, 36, 2))
sketch1.addConstraint(Sketcher.Constraint("Vertical", 39, 2, 42, 2))
sketch1.addConstraint(Sketcher.Constraint("Vertical", 45, 2, 48, 2))
sketch1.addConstraint(Sketcher.Constraint("Vertical", 23, 2, 50, 2))
sketch1.addConstraint(Sketcher.Constraint("Vertical", 21, 2, 52, 2))
sketch1.addConstraint(Sketcher.Constraint("Vertical", 51, 2, 54, 2))
sketch1.addConstraint(Sketcher.Constraint("Vertical", 17, 2, 56, 2))
sketch1.addConstraint(Sketcher.Constraint("Vertical", 15, 2, 58, 2))
sketch1.addConstraint(Sketcher.Constraint("Vertical", 13, 2, 60, 2))
sketch1.addConstraint(Sketcher.Constraint("Vertical", 59, 2, 62, 2))
sketch1.addConstraint(Sketcher.Constraint("Vertical", 57, 2, 64, 2))
sketch1.addConstraint(Sketcher.Constraint("Vertical", 55, 2, 66, 2))
sketch1.addConstraint(Sketcher.Constraint("Vertical", 69, 2, 73, 2))
sketch1.addConstraint(Sketcher.Constraint("Vertical", 71, 2, 75, 2))
sketch1.addConstraint(Sketcher.Constraint("Vertical", 74, 2, 79, 2))
sketch1.addConstraint(Sketcher.Constraint("Vertical", 76, 2, 81, 2))
sketch1.addConstraint(Sketcher.Constraint("Vertical", 80, 2, 84, 2))
sketch1.addConstraint(Sketcher.Constraint("Vertical", 82, 2, 86, 2))
sketch1.addConstraint(Sketcher.Constraint("Equal", 30, 34))
sketch1.addConstraint(Sketcher.Constraint("Equal", 36, 40))
sketch1.addConstraint(Sketcher.Constraint("Equal", 32, 44))
sketch1.addConstraint(Sketcher.Constraint("Equal", 42, 46))
sketch1.addConstraint(Sketcher.Constraint("Equal", 26, 50))
sketch1.addConstraint(Sketcher.Constraint("Equal", 1, 5))
sketch1.addConstraint(Sketcher.Constraint("Equal", 48, 9))
sketch1.addConstraint(Sketcher.Constraint("Equal", 44, 13))
sketch1.addConstraint(Sketcher.Constraint("Equal", 11, 15))
sketch1.addConstraint(Sketcher.Constraint("Equal", 7, 19))
sketch1.addConstraint(Sketcher.Constraint("Equal", 5, 21))
sketch1.addConstraint(Sketcher.Constraint("Equal", 66, 27))
sketch1.addConstraint(Sketcher.Constraint("Equal", 64, 29))
sketch1.addConstraint(Sketcher.Constraint("Equal", 62, 31))
sketch1.addConstraint(Sketcher.Constraint("Equal", 21, 53))
sketch1.addConstraint(Sketcher.Constraint("Equal", 19, 55))
sketch1.addConstraint(Sketcher.Constraint("Equal", 17, 57))
sketch1.addConstraint(Sketcher.Constraint("Equal", 13, 61))
sketch1.addConstraint(Sketcher.Constraint("Equal", 59, 63))
sketch1.addConstraint(Sketcher.Constraint("Equal", 55, 67))
sketch1.addConstraint(Sketcher.Constraint("Equal", 53, 69))
sketch1.addConstraint(Sketcher.Constraint("Equal", 71, 74))
sketch1.addConstraint(Sketcher.Constraint("Equal", 76, 80))
sketch1.addConstraint(Sketcher.Constraint("Equal", 82, 85))
sketch1.addConstraint(Sketcher.Constraint("Equal", 0, 2))
sketch1.addConstraint(Sketcher.Constraint("Diameter", 72, Q("3.2 mm")))
sketch1.addConstraint(Sketcher.Constraint("DistanceX", 24, 2, 24, 1, Q("165 mm")))
sketch1.addConstraint(Sketcher.Constraint("DistanceX", 26, 1, 26, 2, Q("15 mm")))
sketch1.addConstraint(Sketcher.Constraint("DistanceY", 1, 1, 1, 2, Q("10 mm")))
sketch1.addConstraint(Sketcher.Constraint("DistanceX", 8, 2, 8, 1, Q("6.8 mm")))
sketch1.addConstraint(Sketcher.Constraint("DistanceX", 10, 2, 10, 1, Q("2.2 mm")))
sketch1.addConstraint(Sketcher.Constraint("DistanceX", 12, 2, 12, 1, Q("1.5 mm")))
sketch1.addConstraint(Sketcher.Constraint("DistanceX", 28, 2, 28, 1, Q("1.2 mm")))
sketch1.addConstraint(Sketcher.Constraint("DistanceX", 32, 1, 32, 2, Q("3.1 mm")))
sketch1.addConstraint(Sketcher.Constraint("DistanceX", 68, 2, 68, 1, Q("6.1 mm")))
sketch1.addConstraint(Sketcher.Constraint("DistanceY", 3, 1, 3, 2, Q("89.8 mm")))
sketch1.addConstraint(Sketcher.Constraint("DistanceY", 23, 1, 23, 2, Q("33.1 mm")))
sketch1.addConstraint(Sketcher.Constraint("DistanceY", 7, 1, 7, 2, Q("28.35 mm")))
sketch1.addConstraint(Sketcher.Constraint("DistanceY", 25, 2, 25, 1, Q("317.902324 mm")))
sketch1.addConstraint(Sketcher.Constraint("DistanceY", 51, 1, 51, 2, Q("34.602324 mm")))
sketch1.addConstraint(Sketcher.Constraint("DistanceY", -1, 1, 72, 3, Q("593.238519 mm")))
sketch1.addConstraint(Sketcher.Constraint("DistanceY", -1, 1, 77, 3, Q("548.438519 mm")))
sketch1.addConstraint(Sketcher.Constraint("DistanceY", -1, 1, 78, 3, Q("674.138519 mm")))
sketch1.addConstraint(Sketcher.Constraint("DistanceY", -1, 1, 83, 3, Q("763.238519 mm")))
sketch1.addConstraint(Sketcher.Constraint("DistanceY", -1, 1, 88, 3, Q("806.338519 mm")))
sketch1.addConstraint(Sketcher.Constraint("DistanceY", -1, 1, 0, 2, Q("623.138519 mm")))
sketch1.addConstraint(Sketcher.Constraint("Distance", 0, Q("6.000833 mm")))
sketch1.addConstraint(Sketcher.Constraint("DistanceX", -1, 1, 72, 3, Q("919.269865 mm")))
sketch1.addConstraint(Sketcher.Constraint("DistanceX", -1, 1, 77, 3, Q("975.719865 mm")))
sketch1.addConstraint(Sketcher.Constraint("DistanceX", -1, 1, 0, 2, Q("1084.719865 mm")))
sketch1.addConstraint(Sketcher.Constraint("DistanceX", -1, 1, 68, 2, Q("916.219865 mm")))
pad1 = body.newObject("PartDesign::Pad", "Pad")
pad1.Profile = sketch1
pad1.Length = 6

doc.recompute()
